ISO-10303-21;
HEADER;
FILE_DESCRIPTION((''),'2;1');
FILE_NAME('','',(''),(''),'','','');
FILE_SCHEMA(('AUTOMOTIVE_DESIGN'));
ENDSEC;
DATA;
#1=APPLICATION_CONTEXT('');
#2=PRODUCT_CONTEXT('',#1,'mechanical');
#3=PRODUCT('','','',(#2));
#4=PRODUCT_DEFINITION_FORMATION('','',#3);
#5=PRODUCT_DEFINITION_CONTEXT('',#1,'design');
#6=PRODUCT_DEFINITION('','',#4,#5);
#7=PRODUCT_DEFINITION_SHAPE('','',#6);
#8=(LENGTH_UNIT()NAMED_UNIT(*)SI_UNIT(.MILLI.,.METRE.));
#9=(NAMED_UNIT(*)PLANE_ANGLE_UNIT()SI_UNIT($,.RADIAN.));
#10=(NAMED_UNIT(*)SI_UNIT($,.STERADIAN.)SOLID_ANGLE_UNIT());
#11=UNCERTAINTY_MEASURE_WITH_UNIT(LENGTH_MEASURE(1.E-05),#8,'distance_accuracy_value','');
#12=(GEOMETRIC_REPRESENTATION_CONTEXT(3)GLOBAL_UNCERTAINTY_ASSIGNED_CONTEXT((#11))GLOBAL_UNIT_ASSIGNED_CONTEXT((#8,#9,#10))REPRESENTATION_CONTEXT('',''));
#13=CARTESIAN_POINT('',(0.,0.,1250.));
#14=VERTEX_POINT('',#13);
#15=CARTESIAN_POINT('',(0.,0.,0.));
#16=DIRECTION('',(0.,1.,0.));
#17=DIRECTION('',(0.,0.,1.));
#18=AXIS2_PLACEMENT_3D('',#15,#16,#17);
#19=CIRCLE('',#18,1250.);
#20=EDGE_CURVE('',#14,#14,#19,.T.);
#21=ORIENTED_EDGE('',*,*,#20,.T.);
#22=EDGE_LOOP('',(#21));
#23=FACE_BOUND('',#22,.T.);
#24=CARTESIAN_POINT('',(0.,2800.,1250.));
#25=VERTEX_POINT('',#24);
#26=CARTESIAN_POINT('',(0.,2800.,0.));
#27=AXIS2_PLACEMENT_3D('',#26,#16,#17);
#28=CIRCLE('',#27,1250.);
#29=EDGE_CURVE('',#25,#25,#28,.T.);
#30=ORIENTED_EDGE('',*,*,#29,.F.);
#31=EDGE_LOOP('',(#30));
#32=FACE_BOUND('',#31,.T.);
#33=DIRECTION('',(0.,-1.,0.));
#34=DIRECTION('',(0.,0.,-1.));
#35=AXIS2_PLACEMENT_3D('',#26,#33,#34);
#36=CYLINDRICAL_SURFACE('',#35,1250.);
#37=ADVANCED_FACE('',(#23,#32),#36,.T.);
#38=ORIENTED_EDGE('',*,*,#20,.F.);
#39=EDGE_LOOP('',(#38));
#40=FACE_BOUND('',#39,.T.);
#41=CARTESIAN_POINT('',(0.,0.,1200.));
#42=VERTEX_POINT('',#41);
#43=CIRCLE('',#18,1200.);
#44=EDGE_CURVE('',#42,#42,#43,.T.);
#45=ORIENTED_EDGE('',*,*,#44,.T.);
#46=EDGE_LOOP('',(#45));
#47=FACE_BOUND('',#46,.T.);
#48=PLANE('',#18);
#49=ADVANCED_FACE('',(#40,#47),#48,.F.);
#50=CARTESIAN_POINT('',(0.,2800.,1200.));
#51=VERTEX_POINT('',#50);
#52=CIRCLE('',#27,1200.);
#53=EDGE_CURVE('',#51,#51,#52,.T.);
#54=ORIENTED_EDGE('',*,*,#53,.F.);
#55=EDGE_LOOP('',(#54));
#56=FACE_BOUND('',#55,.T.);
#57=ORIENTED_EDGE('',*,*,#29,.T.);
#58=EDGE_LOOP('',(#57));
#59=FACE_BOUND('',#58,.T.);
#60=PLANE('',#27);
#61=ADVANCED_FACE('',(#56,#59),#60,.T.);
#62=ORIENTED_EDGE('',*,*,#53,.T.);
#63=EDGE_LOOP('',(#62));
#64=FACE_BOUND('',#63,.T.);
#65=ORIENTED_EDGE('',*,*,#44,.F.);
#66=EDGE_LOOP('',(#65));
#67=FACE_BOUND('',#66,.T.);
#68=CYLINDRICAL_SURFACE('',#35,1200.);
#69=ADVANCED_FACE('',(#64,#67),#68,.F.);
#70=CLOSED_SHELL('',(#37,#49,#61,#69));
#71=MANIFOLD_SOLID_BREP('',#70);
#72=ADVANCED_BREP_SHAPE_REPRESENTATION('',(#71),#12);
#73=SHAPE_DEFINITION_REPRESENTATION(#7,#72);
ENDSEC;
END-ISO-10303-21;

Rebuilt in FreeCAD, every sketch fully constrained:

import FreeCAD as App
import Part
import Sketcher

V = App.Vector

doc = App.newDocument("Part")
params = doc.addObject("Spreadsheet::Sheet", "Params")
for row, (alias, value) in enumerate([
    ("sketch1_diameter", "2500 mm"),
    ("sketch1_diameter2", "2400 mm"),
    ("pad1_length", "2800 mm"),
], start=1):
    params.set(f"A{row}", alias)
    params.set(f"B{row}", "=" + value)
    params.setAlias(f"B{row}", alias)

body = doc.addObject("PartDesign::Body", "Body")

sketch1 = body.newObject("Sketcher::SketchObject", "Sketch")
sketch1.AttachmentSupport = (doc.getObject("XZ_Plane"), [""])
sketch1.MapMode = "FlatFace"
sketch1.addGeometry([
    Part.Circle(V(0, 0, 0), V(0, 0, 1), 1250),
    Part.Circle(V(0, 0, 0), V(0, 0, 1), 1200),
], False)
sketch1.addConstraint([
    Sketcher.Constraint("Coincident", 0, 3, -1, 1),
    Sketcher.Constraint("Coincident", 1, 3, -1, 1),
    Sketcher.Constraint("Diameter", 0, 2500.0),
    Sketcher.Constraint("Diameter", 1, 2400.0),
])
sketch1.setExpression("Constraints[2]", "Params.sketch1_diameter")
sketch1.setExpression("Constraints[3]", "Params.sketch1_diameter2")
pad1 = body.newObject("PartDesign::Pad", "Pad")
pad1.Profile = sketch1
pad1.setExpression("Length", "Params.pad1_length")
pad1.Reversed = True

doc.recompute()
